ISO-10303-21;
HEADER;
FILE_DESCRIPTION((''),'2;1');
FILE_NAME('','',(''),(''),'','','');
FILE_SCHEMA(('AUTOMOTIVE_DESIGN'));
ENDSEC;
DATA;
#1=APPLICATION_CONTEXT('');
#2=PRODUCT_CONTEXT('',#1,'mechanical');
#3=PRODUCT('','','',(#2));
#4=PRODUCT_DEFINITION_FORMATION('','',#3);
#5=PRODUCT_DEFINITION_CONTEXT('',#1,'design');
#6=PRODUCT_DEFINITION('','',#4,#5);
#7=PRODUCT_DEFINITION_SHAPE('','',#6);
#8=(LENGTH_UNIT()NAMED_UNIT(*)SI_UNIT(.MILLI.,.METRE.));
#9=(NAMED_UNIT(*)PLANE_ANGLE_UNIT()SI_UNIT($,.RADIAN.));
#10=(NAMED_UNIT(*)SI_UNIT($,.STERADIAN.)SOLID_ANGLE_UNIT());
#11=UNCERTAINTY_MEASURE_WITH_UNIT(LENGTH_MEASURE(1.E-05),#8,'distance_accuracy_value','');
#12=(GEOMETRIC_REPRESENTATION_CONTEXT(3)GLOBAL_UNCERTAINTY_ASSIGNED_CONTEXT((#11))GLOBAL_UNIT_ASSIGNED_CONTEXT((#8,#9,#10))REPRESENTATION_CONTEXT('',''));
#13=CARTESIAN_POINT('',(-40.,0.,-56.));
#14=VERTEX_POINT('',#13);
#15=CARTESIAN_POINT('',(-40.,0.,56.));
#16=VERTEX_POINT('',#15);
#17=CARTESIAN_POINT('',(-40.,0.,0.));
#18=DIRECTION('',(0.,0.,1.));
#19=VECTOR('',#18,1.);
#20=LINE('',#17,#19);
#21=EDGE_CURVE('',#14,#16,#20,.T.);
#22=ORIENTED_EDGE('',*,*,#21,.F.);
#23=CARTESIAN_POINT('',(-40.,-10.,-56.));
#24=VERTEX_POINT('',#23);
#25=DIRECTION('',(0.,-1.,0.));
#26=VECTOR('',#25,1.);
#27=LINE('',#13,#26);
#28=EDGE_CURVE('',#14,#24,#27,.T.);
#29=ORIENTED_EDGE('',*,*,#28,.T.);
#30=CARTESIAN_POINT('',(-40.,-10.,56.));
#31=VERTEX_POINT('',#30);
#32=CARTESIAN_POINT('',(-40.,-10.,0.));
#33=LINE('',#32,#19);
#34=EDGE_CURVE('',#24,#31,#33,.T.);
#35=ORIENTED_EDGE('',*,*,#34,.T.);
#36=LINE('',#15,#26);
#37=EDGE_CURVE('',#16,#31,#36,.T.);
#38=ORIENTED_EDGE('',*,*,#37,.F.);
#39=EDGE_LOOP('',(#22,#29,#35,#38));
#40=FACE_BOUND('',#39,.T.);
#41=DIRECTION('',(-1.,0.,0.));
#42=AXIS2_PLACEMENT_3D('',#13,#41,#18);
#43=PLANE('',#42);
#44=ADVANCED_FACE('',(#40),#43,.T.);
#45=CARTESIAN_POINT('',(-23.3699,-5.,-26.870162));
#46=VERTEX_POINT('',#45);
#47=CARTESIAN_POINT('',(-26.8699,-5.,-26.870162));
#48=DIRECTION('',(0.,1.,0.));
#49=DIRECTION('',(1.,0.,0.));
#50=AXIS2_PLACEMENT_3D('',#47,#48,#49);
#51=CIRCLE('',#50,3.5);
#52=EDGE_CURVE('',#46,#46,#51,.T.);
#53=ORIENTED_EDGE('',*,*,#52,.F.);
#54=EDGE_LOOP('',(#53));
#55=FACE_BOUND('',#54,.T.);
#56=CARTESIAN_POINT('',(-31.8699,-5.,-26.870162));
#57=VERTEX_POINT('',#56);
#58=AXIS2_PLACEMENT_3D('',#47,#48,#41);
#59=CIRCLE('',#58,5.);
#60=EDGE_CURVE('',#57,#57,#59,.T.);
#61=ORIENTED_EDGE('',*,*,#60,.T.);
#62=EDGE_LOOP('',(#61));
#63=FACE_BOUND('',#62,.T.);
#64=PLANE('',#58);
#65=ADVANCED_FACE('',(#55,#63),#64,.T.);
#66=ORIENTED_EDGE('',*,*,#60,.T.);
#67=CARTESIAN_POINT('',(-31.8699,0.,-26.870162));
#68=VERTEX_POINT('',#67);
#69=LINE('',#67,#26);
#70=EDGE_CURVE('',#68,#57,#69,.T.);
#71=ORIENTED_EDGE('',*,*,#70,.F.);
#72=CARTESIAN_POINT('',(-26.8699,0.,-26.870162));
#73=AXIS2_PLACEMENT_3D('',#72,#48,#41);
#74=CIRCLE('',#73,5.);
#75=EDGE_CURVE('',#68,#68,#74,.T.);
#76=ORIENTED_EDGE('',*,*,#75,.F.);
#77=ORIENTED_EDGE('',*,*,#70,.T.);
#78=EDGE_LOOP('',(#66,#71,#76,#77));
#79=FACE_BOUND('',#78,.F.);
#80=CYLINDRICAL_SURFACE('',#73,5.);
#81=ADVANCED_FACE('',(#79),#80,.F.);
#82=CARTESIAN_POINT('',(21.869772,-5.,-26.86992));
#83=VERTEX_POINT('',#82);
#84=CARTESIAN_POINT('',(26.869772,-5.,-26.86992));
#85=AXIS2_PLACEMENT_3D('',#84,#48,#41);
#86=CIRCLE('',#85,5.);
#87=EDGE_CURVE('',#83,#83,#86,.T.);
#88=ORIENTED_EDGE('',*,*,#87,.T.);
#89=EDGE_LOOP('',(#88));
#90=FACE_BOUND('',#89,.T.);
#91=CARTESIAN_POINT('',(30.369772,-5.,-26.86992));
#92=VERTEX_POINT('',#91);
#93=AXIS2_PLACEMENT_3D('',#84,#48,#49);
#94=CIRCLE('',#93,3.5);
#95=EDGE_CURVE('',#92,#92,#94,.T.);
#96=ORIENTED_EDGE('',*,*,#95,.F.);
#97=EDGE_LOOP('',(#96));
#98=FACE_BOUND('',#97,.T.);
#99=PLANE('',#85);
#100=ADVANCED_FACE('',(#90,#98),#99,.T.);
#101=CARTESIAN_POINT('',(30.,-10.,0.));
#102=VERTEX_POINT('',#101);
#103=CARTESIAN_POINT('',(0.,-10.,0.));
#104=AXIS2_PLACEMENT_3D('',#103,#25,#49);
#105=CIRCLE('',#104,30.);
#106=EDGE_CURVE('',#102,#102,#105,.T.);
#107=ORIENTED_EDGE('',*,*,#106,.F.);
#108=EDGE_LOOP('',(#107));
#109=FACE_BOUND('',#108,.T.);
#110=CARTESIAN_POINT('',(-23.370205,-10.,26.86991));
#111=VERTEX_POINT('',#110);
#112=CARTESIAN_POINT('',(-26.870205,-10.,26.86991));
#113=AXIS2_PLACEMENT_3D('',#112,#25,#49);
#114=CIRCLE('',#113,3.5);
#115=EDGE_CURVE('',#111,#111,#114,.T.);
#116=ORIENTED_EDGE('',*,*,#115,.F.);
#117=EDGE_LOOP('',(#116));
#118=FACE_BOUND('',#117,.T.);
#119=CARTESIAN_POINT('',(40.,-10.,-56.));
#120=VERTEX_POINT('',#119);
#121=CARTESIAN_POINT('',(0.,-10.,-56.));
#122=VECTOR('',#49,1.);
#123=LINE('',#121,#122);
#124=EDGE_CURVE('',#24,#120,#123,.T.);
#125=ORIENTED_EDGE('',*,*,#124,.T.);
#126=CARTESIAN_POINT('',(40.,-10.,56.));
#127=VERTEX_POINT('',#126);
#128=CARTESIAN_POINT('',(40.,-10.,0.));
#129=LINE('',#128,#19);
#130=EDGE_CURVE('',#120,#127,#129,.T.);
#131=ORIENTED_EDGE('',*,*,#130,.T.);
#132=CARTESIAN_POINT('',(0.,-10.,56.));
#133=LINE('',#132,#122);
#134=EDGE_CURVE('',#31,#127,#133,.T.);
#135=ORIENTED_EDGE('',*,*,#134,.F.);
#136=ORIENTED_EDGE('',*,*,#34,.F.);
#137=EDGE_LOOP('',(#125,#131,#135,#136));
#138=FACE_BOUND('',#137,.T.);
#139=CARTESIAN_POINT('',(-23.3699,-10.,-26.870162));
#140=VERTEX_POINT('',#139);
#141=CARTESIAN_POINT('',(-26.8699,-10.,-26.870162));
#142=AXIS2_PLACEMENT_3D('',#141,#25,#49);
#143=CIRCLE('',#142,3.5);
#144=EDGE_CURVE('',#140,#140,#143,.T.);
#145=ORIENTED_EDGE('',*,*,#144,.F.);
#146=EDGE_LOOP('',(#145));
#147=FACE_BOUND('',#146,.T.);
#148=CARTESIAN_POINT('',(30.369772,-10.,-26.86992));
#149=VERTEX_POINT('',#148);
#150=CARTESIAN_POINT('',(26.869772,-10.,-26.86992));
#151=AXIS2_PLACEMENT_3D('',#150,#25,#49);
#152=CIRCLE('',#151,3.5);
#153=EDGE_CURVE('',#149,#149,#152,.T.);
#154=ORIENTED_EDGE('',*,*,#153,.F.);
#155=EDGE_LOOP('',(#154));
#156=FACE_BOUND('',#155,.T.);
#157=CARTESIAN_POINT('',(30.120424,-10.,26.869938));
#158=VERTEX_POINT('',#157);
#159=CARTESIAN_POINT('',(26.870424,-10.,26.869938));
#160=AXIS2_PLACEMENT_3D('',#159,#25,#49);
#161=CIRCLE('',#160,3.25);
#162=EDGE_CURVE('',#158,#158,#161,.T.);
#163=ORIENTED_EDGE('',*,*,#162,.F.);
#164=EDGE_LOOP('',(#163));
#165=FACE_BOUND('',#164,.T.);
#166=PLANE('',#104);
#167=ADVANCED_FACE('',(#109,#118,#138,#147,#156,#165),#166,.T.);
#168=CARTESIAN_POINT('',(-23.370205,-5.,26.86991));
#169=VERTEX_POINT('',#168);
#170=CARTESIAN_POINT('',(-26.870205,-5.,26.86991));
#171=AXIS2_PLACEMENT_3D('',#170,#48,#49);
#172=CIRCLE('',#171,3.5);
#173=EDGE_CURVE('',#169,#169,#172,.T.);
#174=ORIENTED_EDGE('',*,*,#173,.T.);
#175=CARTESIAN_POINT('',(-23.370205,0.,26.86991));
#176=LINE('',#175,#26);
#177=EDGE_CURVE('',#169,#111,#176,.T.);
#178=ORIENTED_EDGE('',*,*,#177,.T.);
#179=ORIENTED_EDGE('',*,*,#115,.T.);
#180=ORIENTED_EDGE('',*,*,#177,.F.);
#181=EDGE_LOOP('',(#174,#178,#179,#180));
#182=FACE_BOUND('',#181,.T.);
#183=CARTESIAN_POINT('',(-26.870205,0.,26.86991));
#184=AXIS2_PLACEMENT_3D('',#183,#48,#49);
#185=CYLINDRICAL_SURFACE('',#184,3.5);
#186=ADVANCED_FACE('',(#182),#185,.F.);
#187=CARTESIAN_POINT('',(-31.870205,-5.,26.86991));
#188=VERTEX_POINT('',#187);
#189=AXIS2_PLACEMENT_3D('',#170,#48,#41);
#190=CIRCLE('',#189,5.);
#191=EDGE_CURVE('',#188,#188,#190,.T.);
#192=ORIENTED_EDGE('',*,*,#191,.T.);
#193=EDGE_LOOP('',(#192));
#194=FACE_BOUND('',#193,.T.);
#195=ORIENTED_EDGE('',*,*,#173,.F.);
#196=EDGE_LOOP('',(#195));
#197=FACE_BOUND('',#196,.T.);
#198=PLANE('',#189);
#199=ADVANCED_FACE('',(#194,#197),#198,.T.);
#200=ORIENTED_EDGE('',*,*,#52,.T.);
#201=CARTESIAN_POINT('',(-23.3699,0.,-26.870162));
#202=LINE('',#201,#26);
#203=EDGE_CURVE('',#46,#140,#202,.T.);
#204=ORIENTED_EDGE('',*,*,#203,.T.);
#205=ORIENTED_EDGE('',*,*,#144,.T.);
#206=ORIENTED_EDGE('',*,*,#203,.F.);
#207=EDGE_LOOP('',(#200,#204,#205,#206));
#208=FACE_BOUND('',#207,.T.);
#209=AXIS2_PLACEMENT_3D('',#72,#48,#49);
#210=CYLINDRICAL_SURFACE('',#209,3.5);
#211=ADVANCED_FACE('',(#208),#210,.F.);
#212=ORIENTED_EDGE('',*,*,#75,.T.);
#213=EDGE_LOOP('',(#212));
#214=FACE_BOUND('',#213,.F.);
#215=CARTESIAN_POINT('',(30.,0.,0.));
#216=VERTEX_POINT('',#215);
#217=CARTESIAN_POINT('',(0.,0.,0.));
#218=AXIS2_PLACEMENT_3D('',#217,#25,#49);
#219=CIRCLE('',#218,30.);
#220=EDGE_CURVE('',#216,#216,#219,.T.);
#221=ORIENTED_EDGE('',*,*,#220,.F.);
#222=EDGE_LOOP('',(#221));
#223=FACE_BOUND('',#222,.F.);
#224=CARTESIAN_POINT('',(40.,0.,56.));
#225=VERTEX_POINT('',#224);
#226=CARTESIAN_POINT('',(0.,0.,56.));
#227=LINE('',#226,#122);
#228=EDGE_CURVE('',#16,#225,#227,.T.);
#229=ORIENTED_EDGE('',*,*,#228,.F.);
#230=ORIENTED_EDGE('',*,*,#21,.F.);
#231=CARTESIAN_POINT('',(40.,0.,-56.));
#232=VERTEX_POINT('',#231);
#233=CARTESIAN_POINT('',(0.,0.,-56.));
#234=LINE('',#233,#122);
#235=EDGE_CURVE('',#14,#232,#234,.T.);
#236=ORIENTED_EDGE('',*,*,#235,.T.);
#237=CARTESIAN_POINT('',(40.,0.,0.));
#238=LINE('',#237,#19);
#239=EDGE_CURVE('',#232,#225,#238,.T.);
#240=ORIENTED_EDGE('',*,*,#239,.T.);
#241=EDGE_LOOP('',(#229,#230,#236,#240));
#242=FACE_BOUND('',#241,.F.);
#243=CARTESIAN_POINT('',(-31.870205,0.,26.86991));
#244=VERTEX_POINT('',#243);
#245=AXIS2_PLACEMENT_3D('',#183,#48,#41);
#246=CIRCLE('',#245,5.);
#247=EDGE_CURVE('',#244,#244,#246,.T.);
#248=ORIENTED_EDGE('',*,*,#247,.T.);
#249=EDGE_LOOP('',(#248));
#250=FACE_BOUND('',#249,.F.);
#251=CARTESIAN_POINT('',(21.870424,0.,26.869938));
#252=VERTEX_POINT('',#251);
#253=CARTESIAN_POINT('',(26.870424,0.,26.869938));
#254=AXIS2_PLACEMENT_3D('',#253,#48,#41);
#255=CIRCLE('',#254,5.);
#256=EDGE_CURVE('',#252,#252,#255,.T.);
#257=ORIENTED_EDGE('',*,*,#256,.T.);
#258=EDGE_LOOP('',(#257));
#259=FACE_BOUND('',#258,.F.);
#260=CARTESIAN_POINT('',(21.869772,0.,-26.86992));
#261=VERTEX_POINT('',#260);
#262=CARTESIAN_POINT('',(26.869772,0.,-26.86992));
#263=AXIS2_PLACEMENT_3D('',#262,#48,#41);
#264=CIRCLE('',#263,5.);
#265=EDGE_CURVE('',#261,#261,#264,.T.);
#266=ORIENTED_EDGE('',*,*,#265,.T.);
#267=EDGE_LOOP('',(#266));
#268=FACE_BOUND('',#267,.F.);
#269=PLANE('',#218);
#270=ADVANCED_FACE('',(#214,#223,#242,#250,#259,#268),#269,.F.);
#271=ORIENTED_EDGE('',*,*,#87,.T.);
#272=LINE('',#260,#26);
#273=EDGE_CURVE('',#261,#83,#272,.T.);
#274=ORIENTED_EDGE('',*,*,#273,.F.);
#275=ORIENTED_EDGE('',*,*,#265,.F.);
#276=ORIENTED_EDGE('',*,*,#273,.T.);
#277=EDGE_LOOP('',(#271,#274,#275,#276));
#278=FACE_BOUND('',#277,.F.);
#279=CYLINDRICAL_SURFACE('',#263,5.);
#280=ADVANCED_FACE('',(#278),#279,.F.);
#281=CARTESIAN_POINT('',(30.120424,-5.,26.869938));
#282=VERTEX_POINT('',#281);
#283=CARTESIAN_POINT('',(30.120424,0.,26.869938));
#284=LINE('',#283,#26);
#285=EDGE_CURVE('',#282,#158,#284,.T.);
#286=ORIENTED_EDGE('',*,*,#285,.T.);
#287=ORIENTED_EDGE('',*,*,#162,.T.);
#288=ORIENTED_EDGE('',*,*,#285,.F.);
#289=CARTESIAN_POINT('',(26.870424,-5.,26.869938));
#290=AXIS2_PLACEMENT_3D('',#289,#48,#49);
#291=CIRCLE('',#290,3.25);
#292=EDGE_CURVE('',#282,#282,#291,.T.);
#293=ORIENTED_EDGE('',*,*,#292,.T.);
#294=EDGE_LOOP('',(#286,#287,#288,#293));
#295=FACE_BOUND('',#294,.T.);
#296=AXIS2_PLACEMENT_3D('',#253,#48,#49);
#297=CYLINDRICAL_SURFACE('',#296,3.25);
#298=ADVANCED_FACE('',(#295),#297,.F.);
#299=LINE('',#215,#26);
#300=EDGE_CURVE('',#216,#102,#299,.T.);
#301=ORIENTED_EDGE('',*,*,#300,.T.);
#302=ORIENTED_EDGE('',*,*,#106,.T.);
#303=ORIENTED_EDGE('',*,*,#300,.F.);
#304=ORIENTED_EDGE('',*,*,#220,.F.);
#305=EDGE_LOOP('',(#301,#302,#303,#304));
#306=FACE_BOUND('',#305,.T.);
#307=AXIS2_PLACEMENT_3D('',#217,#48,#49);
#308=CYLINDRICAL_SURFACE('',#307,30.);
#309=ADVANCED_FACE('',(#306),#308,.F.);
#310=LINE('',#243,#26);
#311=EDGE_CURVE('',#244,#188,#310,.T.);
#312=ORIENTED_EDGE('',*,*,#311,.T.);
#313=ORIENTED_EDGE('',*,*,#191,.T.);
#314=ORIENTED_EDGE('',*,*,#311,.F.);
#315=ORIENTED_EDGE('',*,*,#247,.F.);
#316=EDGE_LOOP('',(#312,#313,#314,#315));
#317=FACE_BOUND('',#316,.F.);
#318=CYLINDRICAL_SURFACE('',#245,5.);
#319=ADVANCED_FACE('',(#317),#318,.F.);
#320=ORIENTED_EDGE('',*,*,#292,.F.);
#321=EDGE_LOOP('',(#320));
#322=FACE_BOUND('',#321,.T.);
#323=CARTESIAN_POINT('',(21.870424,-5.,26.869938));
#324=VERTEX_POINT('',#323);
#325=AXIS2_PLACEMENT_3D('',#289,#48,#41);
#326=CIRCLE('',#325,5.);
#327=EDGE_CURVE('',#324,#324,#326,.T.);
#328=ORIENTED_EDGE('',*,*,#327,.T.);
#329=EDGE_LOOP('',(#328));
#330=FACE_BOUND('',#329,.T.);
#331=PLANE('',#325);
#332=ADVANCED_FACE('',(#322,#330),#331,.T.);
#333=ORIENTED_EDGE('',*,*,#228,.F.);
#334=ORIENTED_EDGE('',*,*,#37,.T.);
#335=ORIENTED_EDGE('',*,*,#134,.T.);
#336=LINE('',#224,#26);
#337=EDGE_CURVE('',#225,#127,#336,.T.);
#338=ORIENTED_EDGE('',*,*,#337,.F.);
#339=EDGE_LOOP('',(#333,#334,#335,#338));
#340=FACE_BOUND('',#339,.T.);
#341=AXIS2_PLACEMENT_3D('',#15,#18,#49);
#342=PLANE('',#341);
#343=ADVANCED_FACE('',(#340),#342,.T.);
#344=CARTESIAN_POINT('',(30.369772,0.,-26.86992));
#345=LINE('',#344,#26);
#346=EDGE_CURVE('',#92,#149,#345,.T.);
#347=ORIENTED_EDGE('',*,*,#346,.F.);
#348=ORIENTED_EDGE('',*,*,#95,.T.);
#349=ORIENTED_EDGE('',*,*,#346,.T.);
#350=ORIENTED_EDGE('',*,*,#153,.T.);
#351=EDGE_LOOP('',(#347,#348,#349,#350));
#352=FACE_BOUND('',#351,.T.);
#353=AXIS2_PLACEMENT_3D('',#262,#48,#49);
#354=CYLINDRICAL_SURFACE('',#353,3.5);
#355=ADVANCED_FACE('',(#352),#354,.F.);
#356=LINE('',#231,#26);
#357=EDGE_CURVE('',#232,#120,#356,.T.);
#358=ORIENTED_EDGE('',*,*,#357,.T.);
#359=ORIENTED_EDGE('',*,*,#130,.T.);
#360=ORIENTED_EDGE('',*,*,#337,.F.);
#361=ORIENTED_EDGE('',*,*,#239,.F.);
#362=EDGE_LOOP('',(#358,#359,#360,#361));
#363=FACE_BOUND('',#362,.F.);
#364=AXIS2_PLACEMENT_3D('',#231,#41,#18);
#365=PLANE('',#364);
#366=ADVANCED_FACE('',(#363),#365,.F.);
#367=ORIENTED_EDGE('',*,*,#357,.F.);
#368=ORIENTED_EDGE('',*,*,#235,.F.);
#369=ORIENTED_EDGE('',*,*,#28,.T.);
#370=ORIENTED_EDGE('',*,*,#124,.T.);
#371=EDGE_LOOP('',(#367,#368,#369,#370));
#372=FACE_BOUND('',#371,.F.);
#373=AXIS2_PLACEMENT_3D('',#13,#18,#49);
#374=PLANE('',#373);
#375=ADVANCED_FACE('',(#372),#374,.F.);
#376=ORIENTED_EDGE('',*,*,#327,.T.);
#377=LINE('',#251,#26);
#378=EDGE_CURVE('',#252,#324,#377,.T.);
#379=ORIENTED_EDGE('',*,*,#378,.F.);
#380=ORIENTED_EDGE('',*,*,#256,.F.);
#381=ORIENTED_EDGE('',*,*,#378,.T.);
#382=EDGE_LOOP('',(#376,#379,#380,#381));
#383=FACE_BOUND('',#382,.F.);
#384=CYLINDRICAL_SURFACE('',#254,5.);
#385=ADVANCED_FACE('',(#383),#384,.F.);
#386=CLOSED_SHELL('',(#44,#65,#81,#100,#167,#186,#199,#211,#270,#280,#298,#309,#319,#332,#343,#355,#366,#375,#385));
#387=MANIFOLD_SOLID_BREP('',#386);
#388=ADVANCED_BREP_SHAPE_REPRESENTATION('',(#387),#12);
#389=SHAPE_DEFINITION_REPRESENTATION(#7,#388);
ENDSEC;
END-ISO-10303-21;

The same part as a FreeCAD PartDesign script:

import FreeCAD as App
import Part
import Sketcher

doc = App.newDocument("Part")
body = doc.addObject("PartDesign::Body", "Body")

sketch1 = doc.addObject("Sketcher::SketchObject", "Sketch")
body.addObject(sketch1)
sketch1.AttachmentSupport = (doc.XZ_Plane, [""])
sketch1.MapMode = "FlatFace"
sketch1.addGeometry([
    Part.LineSegment(App.Vector(-40, 56, 0), App.Vector(-40, -56, 0)),
    Part.LineSegment(App.Vector(-40, -56, 0), App.Vector(40, -56, 0)),
    Part.LineSegment(App.Vector(40, -56, 0), App.Vector(40, 56, 0)),
    Part.LineSegment(App.Vector(40, 56, 0), App.Vector(-40, 56, 0)),
    Part.Circle(App.Vector(-26.9, -26.9, 0), App.Vector(0, 0, 1), 3.5),
    Part.Circle(App.Vector(26.9, -26.9, 0), App.Vector(0, 0, 1), 3.5),
    Part.Circle(App.Vector(-26.9, 26.9, 0), App.Vector(0, 0, 1), 3.5),
    Part.Circle(App.Vector(0, 0, 0), App.Vector(0, 0, 1), 30),
    Part.Circle(App.Vector(26.9, 26.9, 0), App.Vector(0, 0, 1), 3.2),
], False)
sketch1.addConstraint([
    Sketcher.Constraint("Coincident", 0, 2, 1, 1),
    Sketcher.Constraint("Coincident", 1, 2, 2, 1),
    Sketcher.Constraint("Coincident", 2, 2, 3, 1),
    Sketcher.Constraint("Coincident", 3, 2, 0, 1),
    Sketcher.Constraint("Vertical", 0),
    Sketcher.Constraint("Horizontal", 1),
    Sketcher.Constraint("Vertical", 2),
    Sketcher.Constraint("Horizontal", 3),
    Sketcher.Constraint("Coincident", 7, 3, -1, 1),
    Sketcher.Constraint("Equal", 4, 5),
    Sketcher.Constraint("Equal", 5, 6),
    Sketcher.Constraint("Symmetric", 0, 2, 2, 2, -1, 1),
    Sketcher.Constraint("Diameter", 4, 7.0),
    Sketcher.Constraint("Diameter", 7, 60.0),
    Sketcher.Constraint("Diameter", 8, 6.5),
    Sketcher.Constraint("DistanceX", 1, 1, 1, 2, 80.0),
    Sketcher.Constraint("DistanceY", 0, 2, 0, 1, 112.0),
    Sketcher.Constraint("DistanceX", 4, 3, -1, 1, 26.8699),
    Sketcher.Constraint("DistanceY", 4, 3, 8, 3, 53.7401),
    Sketcher.Constraint("DistanceY", 5, 3, -1, 1, 26.86992),
    Sketcher.Constraint("DistanceY", -1, 1, 6, 3, 26.86991),
    Sketcher.Constraint("DistanceY", -1, 1, 8, 3, 26.869938),
    Sketcher.Constraint("DistanceX", 5, 3, 8, 3, 0.000652),
    Sketcher.Constraint("DistanceX", 6, 3, 8, 3, 53.740629),
    Sketcher.Constraint("DistanceX", 0, 2, 5, 3, 66.869772),
])
pad1 = doc.addObject("PartDesign::Pad", "Pad")
body.addObject(pad1)
pad1.Profile = sketch1
pad1.Length = 10

sketch2 = doc.addObject("Sketcher::SketchObject", "Sketch001")
body.addObject(sketch2)
sketch2.AttachmentSupport = (doc.XZ_Plane, [""])
sketch2.MapMode = "FlatFace"
sketch2.addGeometry([
    Part.Circle(App.Vector(26.9, 26.9, 0), App.Vector(0, 0, 1), 5),
    Part.Circle(App.Vector(26.9, 26.9, 0), App.Vector(0, 0, 1), 3.2),
    Part.Circle(App.Vector(-26.9, 26.9, 0), App.Vector(0, 0, 1), 5),
    Part.Circle(App.Vector(-26.9, 26.9, 0), App.Vector(0, 0, 1), 3.5),
    Part.Circle(App.Vector(-26.9, -26.9, 0), App.Vector(0, 0, 1), 5),
    Part.Circle(App.Vector(-26.9, -26.9, 0), App.Vector(0, 0, 1), 3.5),
    Part.Circle(App.Vector(26.9, -26.9, 0), App.Vector(0, 0, 1), 5),
    Part.Circle(App.Vector(26.9, -26.9, 0), App.Vector(0, 0, 1), 3.5),
], False)
sketch2.addConstraint([
    Sketcher.Constraint("Coincident", 1, 3, 0, 3),
    Sketcher.Constraint("Coincident", 3, 3, 2, 3),
    Sketcher.Constraint("Coincident", 5, 3, 4, 3),
    Sketcher.Constraint("Coincident", 7, 3, 6, 3),
    Sketcher.Constraint("Equal", 0, 2),
    Sketcher.Constraint("Equal", 2, 4),
    Sketcher.Constraint("Equal", 3, 5),
    Sketcher.Constraint("Equal", 4, 6),
    Sketcher.Constraint("Equal", 5, 7),
    Sketcher.Constraint("Diameter", 0, 10.0),
    Sketcher.Constraint("Diameter", 3, 7.0),
    Sketcher.Constraint("Diameter", 1, 6.5),
    Sketcher.Constraint("DistanceX", 4, 3, -1, 1, 26.8699),
    Sketcher.Constraint("DistanceY", 4, 3, 0, 3, 53.7401),
    Sketcher.Constraint("DistanceY", -1, 1, 0, 3, 26.869938),
    Sketcher.Constraint("DistanceY", -1, 1, 2, 3, 26.86991),
    Sketcher.Constraint("DistanceY", 6, 3, -1, 1, 26.86992),
    Sketcher.Constraint("DistanceX", 2, 3, 0, 3, 53.740629),
    Sketcher.Constraint("DistanceX", 6, 3, 0, 3, 0.000652),
    Sketcher.Constraint("DistanceX", -1, 1, 0, 3, 26.870424),
])
pocket1 = doc.addObject("PartDesign::Pocket", "Pocket")
body.addObject(pocket1)
pocket1.Profile = sketch2
pocket1.Length = 5
pocket1.Reversed = True

doc.recompute()
